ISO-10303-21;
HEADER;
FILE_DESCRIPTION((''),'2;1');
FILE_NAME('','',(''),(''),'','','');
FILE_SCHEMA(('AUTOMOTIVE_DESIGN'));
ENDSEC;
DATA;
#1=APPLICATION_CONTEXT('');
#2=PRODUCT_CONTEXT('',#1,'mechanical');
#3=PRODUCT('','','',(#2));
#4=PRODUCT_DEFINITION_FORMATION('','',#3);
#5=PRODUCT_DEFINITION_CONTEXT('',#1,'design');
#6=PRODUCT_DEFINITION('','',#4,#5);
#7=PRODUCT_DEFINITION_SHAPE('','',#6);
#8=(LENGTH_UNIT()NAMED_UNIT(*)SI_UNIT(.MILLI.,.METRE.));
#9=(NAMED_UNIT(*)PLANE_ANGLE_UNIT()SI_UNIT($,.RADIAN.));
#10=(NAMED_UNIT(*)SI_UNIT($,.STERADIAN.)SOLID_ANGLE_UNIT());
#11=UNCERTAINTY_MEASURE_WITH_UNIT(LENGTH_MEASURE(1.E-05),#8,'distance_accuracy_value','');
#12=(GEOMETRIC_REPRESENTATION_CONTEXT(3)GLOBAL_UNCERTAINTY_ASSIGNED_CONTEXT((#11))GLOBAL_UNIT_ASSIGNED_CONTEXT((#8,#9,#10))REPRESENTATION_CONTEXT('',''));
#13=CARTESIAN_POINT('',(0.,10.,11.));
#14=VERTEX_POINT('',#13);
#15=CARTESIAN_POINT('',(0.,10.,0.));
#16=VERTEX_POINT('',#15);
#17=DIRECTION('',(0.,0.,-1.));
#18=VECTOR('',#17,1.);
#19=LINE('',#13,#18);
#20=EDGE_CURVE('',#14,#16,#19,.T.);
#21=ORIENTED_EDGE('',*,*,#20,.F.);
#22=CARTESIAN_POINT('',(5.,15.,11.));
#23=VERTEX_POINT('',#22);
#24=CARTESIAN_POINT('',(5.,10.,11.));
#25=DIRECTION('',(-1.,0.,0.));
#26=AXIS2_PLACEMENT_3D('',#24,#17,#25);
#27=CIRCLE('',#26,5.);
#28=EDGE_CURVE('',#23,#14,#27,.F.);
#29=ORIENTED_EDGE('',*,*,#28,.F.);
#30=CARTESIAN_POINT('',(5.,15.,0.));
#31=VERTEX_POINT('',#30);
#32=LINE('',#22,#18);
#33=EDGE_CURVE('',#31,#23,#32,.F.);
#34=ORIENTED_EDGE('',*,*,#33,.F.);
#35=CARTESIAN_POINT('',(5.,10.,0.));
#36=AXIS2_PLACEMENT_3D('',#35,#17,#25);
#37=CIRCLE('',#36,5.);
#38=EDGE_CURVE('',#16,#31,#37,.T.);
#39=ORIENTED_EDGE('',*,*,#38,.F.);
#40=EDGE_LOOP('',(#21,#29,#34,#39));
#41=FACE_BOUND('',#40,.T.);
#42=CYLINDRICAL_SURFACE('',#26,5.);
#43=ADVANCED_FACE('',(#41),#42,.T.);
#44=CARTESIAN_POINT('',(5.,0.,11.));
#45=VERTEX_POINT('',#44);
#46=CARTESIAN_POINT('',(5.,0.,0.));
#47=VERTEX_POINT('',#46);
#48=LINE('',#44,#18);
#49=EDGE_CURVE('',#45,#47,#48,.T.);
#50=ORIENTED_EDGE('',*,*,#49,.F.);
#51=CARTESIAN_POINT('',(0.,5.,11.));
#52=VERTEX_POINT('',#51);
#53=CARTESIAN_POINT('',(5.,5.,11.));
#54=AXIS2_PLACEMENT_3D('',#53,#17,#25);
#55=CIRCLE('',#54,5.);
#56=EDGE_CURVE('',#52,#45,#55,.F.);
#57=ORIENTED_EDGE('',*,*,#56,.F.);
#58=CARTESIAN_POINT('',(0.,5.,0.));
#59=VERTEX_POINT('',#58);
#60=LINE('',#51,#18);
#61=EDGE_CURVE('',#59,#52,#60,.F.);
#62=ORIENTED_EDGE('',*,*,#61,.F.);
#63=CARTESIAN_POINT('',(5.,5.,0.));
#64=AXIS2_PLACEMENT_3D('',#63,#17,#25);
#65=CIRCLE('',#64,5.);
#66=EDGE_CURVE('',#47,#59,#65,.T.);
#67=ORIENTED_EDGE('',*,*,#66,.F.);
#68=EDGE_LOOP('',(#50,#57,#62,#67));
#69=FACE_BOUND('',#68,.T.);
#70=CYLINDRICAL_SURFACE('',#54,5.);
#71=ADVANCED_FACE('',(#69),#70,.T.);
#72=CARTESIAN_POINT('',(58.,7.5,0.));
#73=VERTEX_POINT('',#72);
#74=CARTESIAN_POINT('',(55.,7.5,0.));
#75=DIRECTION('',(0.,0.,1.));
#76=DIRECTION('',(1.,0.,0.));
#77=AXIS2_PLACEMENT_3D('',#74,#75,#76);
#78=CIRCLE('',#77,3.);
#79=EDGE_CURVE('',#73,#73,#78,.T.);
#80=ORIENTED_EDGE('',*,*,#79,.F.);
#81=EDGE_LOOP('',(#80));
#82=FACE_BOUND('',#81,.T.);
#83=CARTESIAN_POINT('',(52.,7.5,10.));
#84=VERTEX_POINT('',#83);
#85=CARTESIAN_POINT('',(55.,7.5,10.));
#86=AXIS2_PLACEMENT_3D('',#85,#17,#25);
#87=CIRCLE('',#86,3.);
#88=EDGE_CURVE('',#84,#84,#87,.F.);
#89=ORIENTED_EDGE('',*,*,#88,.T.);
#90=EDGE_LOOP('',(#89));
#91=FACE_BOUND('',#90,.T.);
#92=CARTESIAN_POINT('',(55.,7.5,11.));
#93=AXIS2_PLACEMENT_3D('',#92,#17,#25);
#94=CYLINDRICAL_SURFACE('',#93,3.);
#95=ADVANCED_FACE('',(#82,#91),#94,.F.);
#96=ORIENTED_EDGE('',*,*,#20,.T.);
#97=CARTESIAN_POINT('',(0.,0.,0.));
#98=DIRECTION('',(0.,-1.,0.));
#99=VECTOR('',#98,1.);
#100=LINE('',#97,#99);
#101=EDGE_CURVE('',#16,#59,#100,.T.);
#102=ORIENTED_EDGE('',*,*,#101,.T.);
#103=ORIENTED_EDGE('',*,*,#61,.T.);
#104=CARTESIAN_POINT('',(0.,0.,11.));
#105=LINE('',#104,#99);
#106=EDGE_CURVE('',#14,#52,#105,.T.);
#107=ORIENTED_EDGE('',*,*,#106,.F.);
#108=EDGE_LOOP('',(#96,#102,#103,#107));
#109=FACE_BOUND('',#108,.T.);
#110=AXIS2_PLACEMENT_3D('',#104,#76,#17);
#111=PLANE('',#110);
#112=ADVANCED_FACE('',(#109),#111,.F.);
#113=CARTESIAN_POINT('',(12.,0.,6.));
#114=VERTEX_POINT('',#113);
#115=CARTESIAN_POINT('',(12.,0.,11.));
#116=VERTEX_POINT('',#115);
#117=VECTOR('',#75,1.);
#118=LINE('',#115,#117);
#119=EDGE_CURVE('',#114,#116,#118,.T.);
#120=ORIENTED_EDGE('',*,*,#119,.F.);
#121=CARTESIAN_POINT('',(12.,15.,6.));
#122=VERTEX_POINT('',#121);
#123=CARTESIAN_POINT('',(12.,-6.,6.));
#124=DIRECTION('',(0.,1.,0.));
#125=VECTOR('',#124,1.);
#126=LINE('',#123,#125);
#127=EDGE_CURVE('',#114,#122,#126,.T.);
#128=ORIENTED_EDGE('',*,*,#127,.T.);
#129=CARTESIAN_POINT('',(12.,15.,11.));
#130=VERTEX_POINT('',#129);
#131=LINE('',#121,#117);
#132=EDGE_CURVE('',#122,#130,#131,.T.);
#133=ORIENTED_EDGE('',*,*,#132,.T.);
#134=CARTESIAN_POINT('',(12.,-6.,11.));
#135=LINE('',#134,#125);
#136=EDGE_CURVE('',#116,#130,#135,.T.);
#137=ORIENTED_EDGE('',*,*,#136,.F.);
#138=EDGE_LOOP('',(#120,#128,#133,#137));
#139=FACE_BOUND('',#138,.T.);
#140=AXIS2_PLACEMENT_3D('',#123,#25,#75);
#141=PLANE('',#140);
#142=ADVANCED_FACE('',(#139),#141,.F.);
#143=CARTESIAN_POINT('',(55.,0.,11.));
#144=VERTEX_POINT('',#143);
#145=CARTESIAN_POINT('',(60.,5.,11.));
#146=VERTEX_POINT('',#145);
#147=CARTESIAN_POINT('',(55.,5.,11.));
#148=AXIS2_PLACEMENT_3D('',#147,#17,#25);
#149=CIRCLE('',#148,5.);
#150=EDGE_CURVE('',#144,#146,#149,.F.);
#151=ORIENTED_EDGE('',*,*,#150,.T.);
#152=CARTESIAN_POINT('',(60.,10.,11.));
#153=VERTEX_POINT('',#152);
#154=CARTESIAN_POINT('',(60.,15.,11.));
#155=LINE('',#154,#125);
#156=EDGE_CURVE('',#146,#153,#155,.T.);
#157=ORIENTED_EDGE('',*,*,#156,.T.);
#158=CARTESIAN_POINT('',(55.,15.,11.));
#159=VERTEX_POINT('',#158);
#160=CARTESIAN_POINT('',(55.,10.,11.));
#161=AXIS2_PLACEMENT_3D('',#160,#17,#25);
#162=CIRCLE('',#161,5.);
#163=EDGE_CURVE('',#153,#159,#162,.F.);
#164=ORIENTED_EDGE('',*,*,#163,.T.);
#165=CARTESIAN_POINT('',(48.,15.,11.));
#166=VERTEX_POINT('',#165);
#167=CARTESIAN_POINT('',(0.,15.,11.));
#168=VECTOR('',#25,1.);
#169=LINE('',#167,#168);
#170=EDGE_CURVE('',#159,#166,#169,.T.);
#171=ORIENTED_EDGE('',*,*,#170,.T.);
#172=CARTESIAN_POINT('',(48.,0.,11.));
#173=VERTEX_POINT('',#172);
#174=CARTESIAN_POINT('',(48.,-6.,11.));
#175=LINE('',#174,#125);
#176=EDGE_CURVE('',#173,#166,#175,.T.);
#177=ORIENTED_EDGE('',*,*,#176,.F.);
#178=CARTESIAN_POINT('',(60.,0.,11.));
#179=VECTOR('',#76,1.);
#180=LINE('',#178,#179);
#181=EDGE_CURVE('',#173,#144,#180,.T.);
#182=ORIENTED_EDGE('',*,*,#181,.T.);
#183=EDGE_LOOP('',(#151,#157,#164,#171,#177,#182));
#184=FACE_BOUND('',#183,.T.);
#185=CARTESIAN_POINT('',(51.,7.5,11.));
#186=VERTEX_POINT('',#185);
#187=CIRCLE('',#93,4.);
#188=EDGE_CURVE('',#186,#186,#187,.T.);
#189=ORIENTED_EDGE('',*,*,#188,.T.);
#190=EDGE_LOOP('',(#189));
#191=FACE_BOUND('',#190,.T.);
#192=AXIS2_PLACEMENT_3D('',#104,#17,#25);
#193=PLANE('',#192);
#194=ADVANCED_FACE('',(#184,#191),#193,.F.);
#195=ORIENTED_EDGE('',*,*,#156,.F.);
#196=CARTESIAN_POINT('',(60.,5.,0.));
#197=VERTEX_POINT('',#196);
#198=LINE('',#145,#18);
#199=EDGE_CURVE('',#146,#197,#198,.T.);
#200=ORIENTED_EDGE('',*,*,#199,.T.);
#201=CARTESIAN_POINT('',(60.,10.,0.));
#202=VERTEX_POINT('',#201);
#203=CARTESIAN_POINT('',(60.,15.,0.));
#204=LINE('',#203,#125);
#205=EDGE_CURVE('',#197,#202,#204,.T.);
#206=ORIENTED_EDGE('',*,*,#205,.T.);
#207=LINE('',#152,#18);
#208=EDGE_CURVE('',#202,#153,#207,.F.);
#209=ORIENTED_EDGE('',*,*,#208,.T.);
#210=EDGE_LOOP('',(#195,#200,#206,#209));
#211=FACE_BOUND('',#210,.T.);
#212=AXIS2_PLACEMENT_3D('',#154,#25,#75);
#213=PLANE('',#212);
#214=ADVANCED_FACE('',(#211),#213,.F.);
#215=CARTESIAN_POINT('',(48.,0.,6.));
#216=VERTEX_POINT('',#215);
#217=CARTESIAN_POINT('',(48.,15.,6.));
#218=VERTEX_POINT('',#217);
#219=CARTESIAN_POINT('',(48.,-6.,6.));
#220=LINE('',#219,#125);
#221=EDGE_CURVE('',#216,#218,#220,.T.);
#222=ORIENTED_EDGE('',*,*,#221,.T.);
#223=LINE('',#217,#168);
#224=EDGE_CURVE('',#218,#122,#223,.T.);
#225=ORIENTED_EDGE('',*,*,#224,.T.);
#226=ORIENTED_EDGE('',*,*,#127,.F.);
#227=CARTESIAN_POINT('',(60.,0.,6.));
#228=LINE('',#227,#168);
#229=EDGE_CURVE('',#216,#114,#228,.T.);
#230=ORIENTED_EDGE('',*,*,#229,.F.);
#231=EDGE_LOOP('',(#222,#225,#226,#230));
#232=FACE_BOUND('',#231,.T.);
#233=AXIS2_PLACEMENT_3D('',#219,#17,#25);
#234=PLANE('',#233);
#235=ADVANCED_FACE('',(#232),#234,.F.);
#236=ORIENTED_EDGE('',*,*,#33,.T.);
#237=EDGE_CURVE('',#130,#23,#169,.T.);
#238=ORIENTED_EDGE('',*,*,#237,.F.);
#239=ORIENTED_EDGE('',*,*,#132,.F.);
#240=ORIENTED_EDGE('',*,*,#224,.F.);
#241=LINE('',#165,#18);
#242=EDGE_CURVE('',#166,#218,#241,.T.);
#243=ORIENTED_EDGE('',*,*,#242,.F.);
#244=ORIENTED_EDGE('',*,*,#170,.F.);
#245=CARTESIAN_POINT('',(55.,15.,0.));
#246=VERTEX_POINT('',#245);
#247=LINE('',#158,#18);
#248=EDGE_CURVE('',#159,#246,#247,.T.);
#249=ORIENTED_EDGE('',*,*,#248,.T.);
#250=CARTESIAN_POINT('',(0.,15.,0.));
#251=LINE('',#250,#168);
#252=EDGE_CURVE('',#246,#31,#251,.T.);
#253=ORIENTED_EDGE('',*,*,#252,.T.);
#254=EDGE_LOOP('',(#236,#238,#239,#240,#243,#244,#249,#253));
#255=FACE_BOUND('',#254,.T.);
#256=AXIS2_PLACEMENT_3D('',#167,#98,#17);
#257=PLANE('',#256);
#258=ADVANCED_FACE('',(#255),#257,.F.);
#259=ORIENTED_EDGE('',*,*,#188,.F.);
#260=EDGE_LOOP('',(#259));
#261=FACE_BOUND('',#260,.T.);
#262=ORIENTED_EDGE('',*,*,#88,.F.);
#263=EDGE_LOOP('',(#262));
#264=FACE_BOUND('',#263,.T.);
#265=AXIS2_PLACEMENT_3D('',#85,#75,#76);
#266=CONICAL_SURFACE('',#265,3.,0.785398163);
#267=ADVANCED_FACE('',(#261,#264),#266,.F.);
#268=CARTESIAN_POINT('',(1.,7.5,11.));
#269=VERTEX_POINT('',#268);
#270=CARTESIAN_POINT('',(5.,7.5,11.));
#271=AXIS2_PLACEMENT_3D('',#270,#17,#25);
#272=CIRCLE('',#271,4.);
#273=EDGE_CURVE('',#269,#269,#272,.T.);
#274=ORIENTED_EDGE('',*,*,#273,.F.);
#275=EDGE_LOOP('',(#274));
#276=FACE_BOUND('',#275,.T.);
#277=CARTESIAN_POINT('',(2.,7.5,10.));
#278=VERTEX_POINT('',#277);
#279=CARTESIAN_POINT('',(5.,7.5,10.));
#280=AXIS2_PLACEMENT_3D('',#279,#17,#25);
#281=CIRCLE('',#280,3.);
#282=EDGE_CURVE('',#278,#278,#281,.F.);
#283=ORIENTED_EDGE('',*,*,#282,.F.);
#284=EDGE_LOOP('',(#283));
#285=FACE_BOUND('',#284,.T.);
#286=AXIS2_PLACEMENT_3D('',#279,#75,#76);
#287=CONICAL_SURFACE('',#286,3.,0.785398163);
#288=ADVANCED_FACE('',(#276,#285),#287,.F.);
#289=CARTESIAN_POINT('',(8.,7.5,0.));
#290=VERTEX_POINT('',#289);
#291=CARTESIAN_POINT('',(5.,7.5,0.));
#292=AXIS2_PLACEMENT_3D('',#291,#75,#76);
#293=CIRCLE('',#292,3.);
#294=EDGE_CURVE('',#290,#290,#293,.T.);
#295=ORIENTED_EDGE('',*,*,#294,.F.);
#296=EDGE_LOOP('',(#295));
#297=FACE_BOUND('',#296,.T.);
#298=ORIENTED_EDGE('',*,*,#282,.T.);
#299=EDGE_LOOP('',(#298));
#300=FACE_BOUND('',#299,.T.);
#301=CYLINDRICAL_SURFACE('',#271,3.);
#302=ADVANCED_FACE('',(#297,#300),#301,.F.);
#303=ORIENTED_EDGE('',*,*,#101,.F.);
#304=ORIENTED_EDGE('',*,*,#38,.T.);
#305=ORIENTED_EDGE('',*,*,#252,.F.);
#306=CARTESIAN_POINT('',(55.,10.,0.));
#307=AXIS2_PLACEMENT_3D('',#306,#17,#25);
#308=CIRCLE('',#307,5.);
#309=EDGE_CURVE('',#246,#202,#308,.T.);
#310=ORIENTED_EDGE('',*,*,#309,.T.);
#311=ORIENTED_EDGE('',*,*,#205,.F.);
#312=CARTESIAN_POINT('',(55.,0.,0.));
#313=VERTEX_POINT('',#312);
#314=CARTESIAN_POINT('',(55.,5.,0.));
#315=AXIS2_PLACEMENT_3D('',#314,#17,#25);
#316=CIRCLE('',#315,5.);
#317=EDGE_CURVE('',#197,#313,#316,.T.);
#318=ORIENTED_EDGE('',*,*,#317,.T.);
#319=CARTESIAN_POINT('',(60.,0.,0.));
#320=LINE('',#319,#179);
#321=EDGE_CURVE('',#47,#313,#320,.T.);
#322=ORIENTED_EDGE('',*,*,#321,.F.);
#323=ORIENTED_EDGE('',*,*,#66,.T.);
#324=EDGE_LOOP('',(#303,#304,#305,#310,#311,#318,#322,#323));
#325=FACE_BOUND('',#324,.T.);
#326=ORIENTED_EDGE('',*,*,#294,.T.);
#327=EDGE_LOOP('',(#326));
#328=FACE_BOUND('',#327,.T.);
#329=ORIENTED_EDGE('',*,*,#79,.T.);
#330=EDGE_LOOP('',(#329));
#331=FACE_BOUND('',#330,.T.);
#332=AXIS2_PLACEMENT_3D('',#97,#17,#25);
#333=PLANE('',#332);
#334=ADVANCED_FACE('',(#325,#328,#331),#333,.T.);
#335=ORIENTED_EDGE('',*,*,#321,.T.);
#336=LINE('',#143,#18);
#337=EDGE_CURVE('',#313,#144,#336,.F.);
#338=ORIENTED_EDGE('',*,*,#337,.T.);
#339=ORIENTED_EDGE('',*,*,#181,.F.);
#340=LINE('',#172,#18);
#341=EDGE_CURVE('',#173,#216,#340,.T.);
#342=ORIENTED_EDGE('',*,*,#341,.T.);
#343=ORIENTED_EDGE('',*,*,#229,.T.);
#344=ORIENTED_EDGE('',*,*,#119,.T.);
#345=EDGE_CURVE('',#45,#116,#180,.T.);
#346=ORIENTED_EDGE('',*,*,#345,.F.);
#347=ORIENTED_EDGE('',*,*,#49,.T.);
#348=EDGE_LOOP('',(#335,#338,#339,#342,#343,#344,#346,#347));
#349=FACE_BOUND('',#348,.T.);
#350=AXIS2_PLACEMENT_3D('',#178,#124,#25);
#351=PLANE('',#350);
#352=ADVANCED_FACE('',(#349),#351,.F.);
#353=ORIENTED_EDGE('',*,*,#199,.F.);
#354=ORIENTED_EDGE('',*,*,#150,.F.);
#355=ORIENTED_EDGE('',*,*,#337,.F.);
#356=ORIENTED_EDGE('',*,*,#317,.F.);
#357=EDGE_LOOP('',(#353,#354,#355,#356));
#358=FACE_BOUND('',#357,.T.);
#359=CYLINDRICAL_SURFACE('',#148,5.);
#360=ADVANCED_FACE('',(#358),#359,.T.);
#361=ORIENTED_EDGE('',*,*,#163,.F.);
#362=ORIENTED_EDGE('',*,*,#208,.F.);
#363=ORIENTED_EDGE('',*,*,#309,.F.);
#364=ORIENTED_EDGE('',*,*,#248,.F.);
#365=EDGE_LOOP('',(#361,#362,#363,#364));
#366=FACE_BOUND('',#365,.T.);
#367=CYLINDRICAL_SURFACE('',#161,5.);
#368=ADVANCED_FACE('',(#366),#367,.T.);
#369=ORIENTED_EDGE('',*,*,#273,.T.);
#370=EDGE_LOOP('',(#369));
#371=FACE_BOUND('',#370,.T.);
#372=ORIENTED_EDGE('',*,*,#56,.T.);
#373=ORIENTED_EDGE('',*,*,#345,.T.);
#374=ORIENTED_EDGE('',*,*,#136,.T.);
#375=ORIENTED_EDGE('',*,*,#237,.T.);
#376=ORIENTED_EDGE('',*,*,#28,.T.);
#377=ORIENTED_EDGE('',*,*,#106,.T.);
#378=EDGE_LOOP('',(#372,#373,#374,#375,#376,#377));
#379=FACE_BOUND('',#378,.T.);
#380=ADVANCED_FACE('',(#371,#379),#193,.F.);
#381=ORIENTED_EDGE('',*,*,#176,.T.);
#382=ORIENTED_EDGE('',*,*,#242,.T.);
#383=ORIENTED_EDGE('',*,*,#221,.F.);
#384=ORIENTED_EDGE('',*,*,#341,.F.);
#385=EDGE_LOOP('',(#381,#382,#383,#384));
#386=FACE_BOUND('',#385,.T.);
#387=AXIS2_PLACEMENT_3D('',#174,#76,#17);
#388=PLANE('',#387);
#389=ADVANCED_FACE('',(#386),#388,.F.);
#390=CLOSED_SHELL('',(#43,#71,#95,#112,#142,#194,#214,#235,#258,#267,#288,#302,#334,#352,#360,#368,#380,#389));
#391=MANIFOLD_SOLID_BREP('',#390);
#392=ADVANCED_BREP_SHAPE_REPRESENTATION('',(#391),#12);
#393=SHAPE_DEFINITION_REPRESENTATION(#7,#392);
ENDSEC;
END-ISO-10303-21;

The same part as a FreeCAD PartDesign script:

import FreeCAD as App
import Part
import Sketcher
from FreeCAD import Vector
Q = App.Units.Quantity


def edges_at(feature, points):
    """Names of the edges that pass closest to the given points."""
    edges = feature.Shape.Edges
    near = lambda p: min(range(len(edges)), key=lambda i: edges[i].distToShape(Part.Vertex(*p))[0])
    return sorted({f"Edge{near(p) + 1}" for p in points})

doc = App.newDocument("Part")
body = doc.addObject("PartDesign::Body", "Body")

sketch1 = body.newObject("Sketcher::SketchObject", "Sketch")
sketch1.AttachmentSupport = (doc.getObject("XY_Plane"), [""])
sketch1.MapMode = "FlatFace"
sketch1.addGeometry(Part.LineSegment(Vector(0, 15, 0), Vector(0, 0, 0)), False)
sketch1.addGeometry(Part.LineSegment(Vector(0, 0, 0), Vector(60, 0, 0)), False)
sketch1.addGeometry(Part.LineSegment(Vector(60, 0, 0), Vector(60, 15, 0)), False)
sketch1.addGeometry(Part.LineSegment(Vector(60, 15, 0), Vector(0, 15, 0)), False)
sketch1.addGeometry(Part.Circle(Vector(5, 7.5, 0), Vector(0, 0, 1), 3), False)
sketch1.addGeometry(Part.Circle(Vector(55, 7.5, 0), Vector(0, 0, 1), 3), False)
sketch1.addConstraint(Sketcher.Constraint("Coincident", 0, 2, 1, 1))
sketch1.addConstraint(Sketcher.Constraint("Coincident", 1, 2, 2, 1))
sketch1.addConstraint(Sketcher.Constraint("Coincident", 2, 2, 3, 1))
sketch1.addConstraint(Sketcher.Constraint("Coincident", 3, 2, 0, 1))
sketch1.addConstraint(Sketcher.Constraint("Vertical", 0))
sketch1.addConstraint(Sketcher.Constraint("Horizontal", 1))
sketch1.addConstraint(Sketcher.Constraint("Vertical", 2))
sketch1.addConstraint(Sketcher.Constraint("Horizontal", 3))
sketch1.addConstraint(Sketcher.Constraint("Coincident", 0, 2, -1, 1))
sketch1.addConstraint(Sketcher.Constraint("Equal", 4, 5))
sketch1.addConstraint(Sketcher.Constraint("Horizontal", 4, 3, 5, 3))
sketch1.addConstraint(Sketcher.Constraint("Diameter", 4, Q("6 mm")))
sketch1.addConstraint(Sketcher.Constraint("DistanceX", 1, 1, 1, 2, Q("60 mm")))
sketch1.addConstraint(Sketcher.Constraint("DistanceY", 0, 2, 0, 1, Q("15 mm")))
sketch1.addConstraint(Sketcher.Constraint("DistanceX", -1, 1, 4, 3, Q("5 mm")))
sketch1.addConstraint(Sketcher.Constraint("DistanceX", -1, 1, 5, 3, Q("55 mm")))
sketch1.addConstraint(Sketcher.Constraint("DistanceY", -1, 1, 4, 3, Q("7.5 mm")))
pad1 = body.newObject("PartDesign::Pad", "Pad")
pad1.Profile = sketch1
pad1.Length = 11
doc.recompute()

fillet = body.newObject("PartDesign::Fillet", "Fillet")
fillet.Base = (pad1, edges_at(pad1, [
    (0, 0, 5.5),
    (0, 15, 5.5),
    (60, 15, 5.5),
    (60, 0, 5.5),
]))
fillet.Radius = 5

sketch2 = body.newObject("Sketcher::SketchObject", "Sketch001")
sketch2.AttachmentSupport = (doc.getObject("XZ_Plane"), [""])
sketch2.MapMode = "FlatFace"
sketch2.AttachmentOffset = App.Placement(Vector(0, 0, -15), App.Rotation())
sketch2.addGeometry(Part.LineSegment(Vector(48, 11, 0), Vector(48, 6, 0)), False)
sketch2.addGeometry(Part.LineSegment(Vector(48, 6, 0), Vector(12, 6, 0)), False)
sketch2.addGeometry(Part.LineSegment(Vector(12, 6, 0), Vector(12, 11, 0)), False)
sketch2.addGeometry(Part.LineSegment(Vector(12, 11, 0), Vector(48, 11, 0)), False)
sketch2.addConstraint(Sketcher.Constraint("Coincident", 0, 2, 1, 1))
sketch2.addConstraint(Sketcher.Constraint("Coincident", 1, 2, 2, 1))
sketch2.addConstraint(Sketcher.Constraint("Coincident", 2, 2, 3, 1))
sketch2.addConstraint(Sketcher.Constraint("Coincident", 3, 2, 0, 1))
sketch2.addConstraint(Sketcher.Constraint("Vertical", 0))
sketch2.addConstraint(Sketcher.Constraint("Horizontal", 1))
sketch2.addConstraint(Sketcher.Constraint("Vertical", 2))
sketch2.addConstraint(Sketcher.Constraint("Horizontal", 3))
sketch2.addConstraint(Sketcher.Constraint("DistanceX", 1, 2, 1, 1, Q("36 mm")))
sketch2.addConstraint(Sketcher.Constraint("DistanceY", 0, 2, 0, 1, Q("5 mm")))
sketch2.addConstraint(Sketcher.Constraint("DistanceX", -1, 1, 0, 2, Q("48 mm")))
sketch2.addConstraint(Sketcher.Constraint("DistanceY", -1, 1, 0, 2, Q("6 mm")))
pocket1 = body.newObject("PartDesign::Pocket", "Pocket")
pocket1.Profile = sketch2
pocket1.Length = 21
pocket1.Reversed = True
doc.recompute()

chamfer = body.newObject("PartDesign::Chamfer", "Chamfer")
chamfer.Base = (pocket1, edges_at(pocket1, [(2, 7.5, 11), (52, 7.5, 11)]))
chamfer.Size = 1

doc.recompute()
